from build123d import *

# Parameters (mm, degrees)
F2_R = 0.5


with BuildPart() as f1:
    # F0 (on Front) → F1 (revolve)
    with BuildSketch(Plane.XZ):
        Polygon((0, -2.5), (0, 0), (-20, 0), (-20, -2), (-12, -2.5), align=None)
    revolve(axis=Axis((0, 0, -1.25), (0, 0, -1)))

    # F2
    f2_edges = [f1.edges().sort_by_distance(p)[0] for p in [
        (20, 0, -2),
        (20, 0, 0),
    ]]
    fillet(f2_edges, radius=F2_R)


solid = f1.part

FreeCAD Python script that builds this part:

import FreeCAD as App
import Part
import Sketcher


def edges_at(feature, points):
    """Names of the edges that pass closest to the given points."""
    edges = feature.Shape.Edges
    near = lambda p: min(range(len(edges)), key=lambda i: edges[i].distToShape(Part.Vertex(*p))[0])
    return sorted({f"Edge{near(p) + 1}" for p in points})

doc = App.newDocument("Part")
params = doc.addObject("Spreadsheet::Sheet", "Params")
for row, (alias, value) in enumerate([
    ("sketch1_width", "20 mm"),
    ("sketch1_width2", "12 mm"),
    ("sketch1_height", "2 mm"),
    ("sketch1_height2", "2.5 mm"),
    ("revolution_angle", "360 deg"),
    ("fillet_radius", "0.5 mm"),
], start=1):
    params.set(f"A{row}", alias)
    params.set(f"B{row}", "=" + value)
    params.setAlias(f"B{row}", alias)

body = doc.addObject("PartDesign::Body", "Body")

sketch1 = doc.addObject("Sketcher::SketchObject", "Sketch")
body.addObject(sketch1)
sketch1.AttachmentSupport = (doc.XZ_Plane, [""])
sketch1.MapMode = "FlatFace"
sketch1.addGeometry([
    Part.LineSegment(App.Vector(0, -2.5, 0), App.Vector(0, 0, 0)),
    Part.LineSegment(App.Vector(0, 0, 0), App.Vector(-20, 0, 0)),
    Part.LineSegment(App.Vector(-20, 0, 0), App.Vector(-20, -2, 0)),
    Part.LineSegment(App.Vector(-20, -2, 0), App.Vector(-12, -2.5, 0)),
    Part.LineSegment(App.Vector(-12, -2.5, 0), App.Vector(0, -2.5, 0)),
], False)
sketch1.addConstraint([
    Sketcher.Constraint("Coincident", 0, 2, 1, 1),
    Sketcher.Constraint("Coincident", 1, 2, 2, 1),
    Sketcher.Constraint("Coincident", 2, 2, 3, 1),
    Sketcher.Constraint("Coincident", 3, 2, 4, 1),
    Sketcher.Constraint("Coincident", 4, 2, 0, 1),
    Sketcher.Constraint("Vertical", 0),
    Sketcher.Constraint("Horizontal", 1),
    Sketcher.Constraint("Vertical", 2),
    Sketcher.Constraint("Horizontal", 4),
    Sketcher.Constraint("Coincident", 0, 2, -1, 1),
    Sketcher.Constraint("DistanceX", 1, 2, 1, 1, 20.0),
    Sketcher.Constraint("DistanceX", 4, 1, 4, 2, 12.0),
    Sketcher.Constraint("DistanceY", 2, 2, 2, 1, 2.0),
    Sketcher.Constraint("DistanceY", 0, 1, 0, 2, 2.5),
])
sketch1.setExpression("Constraints[10]", "Params.sketch1_width")
sketch1.setExpression("Constraints[11]", "Params.sketch1_width2")
sketch1.setExpression("Constraints[12]", "Params.sketch1_height")
sketch1.setExpression("Constraints[13]", "Params.sketch1_height2")
revolution = doc.addObject("PartDesign::Revolution", "Revolution")
body.addObject(revolution)
revolution.Profile = sketch1
revolution.ReferenceAxis = (sketch1, ["V_Axis"])
revolution.setExpression("Angle", "Params.revolution_angle")
doc.recompute()

fillet = doc.addObject("PartDesign::Fillet", "Fillet")
body.addObject(fillet)
fillet.Base = (revolution, edges_at(revolution, [(20, 0, -2), (20, 0, 0)]))
fillet.setExpression("Radius", "Params.fillet_radius")

doc.recompute()
